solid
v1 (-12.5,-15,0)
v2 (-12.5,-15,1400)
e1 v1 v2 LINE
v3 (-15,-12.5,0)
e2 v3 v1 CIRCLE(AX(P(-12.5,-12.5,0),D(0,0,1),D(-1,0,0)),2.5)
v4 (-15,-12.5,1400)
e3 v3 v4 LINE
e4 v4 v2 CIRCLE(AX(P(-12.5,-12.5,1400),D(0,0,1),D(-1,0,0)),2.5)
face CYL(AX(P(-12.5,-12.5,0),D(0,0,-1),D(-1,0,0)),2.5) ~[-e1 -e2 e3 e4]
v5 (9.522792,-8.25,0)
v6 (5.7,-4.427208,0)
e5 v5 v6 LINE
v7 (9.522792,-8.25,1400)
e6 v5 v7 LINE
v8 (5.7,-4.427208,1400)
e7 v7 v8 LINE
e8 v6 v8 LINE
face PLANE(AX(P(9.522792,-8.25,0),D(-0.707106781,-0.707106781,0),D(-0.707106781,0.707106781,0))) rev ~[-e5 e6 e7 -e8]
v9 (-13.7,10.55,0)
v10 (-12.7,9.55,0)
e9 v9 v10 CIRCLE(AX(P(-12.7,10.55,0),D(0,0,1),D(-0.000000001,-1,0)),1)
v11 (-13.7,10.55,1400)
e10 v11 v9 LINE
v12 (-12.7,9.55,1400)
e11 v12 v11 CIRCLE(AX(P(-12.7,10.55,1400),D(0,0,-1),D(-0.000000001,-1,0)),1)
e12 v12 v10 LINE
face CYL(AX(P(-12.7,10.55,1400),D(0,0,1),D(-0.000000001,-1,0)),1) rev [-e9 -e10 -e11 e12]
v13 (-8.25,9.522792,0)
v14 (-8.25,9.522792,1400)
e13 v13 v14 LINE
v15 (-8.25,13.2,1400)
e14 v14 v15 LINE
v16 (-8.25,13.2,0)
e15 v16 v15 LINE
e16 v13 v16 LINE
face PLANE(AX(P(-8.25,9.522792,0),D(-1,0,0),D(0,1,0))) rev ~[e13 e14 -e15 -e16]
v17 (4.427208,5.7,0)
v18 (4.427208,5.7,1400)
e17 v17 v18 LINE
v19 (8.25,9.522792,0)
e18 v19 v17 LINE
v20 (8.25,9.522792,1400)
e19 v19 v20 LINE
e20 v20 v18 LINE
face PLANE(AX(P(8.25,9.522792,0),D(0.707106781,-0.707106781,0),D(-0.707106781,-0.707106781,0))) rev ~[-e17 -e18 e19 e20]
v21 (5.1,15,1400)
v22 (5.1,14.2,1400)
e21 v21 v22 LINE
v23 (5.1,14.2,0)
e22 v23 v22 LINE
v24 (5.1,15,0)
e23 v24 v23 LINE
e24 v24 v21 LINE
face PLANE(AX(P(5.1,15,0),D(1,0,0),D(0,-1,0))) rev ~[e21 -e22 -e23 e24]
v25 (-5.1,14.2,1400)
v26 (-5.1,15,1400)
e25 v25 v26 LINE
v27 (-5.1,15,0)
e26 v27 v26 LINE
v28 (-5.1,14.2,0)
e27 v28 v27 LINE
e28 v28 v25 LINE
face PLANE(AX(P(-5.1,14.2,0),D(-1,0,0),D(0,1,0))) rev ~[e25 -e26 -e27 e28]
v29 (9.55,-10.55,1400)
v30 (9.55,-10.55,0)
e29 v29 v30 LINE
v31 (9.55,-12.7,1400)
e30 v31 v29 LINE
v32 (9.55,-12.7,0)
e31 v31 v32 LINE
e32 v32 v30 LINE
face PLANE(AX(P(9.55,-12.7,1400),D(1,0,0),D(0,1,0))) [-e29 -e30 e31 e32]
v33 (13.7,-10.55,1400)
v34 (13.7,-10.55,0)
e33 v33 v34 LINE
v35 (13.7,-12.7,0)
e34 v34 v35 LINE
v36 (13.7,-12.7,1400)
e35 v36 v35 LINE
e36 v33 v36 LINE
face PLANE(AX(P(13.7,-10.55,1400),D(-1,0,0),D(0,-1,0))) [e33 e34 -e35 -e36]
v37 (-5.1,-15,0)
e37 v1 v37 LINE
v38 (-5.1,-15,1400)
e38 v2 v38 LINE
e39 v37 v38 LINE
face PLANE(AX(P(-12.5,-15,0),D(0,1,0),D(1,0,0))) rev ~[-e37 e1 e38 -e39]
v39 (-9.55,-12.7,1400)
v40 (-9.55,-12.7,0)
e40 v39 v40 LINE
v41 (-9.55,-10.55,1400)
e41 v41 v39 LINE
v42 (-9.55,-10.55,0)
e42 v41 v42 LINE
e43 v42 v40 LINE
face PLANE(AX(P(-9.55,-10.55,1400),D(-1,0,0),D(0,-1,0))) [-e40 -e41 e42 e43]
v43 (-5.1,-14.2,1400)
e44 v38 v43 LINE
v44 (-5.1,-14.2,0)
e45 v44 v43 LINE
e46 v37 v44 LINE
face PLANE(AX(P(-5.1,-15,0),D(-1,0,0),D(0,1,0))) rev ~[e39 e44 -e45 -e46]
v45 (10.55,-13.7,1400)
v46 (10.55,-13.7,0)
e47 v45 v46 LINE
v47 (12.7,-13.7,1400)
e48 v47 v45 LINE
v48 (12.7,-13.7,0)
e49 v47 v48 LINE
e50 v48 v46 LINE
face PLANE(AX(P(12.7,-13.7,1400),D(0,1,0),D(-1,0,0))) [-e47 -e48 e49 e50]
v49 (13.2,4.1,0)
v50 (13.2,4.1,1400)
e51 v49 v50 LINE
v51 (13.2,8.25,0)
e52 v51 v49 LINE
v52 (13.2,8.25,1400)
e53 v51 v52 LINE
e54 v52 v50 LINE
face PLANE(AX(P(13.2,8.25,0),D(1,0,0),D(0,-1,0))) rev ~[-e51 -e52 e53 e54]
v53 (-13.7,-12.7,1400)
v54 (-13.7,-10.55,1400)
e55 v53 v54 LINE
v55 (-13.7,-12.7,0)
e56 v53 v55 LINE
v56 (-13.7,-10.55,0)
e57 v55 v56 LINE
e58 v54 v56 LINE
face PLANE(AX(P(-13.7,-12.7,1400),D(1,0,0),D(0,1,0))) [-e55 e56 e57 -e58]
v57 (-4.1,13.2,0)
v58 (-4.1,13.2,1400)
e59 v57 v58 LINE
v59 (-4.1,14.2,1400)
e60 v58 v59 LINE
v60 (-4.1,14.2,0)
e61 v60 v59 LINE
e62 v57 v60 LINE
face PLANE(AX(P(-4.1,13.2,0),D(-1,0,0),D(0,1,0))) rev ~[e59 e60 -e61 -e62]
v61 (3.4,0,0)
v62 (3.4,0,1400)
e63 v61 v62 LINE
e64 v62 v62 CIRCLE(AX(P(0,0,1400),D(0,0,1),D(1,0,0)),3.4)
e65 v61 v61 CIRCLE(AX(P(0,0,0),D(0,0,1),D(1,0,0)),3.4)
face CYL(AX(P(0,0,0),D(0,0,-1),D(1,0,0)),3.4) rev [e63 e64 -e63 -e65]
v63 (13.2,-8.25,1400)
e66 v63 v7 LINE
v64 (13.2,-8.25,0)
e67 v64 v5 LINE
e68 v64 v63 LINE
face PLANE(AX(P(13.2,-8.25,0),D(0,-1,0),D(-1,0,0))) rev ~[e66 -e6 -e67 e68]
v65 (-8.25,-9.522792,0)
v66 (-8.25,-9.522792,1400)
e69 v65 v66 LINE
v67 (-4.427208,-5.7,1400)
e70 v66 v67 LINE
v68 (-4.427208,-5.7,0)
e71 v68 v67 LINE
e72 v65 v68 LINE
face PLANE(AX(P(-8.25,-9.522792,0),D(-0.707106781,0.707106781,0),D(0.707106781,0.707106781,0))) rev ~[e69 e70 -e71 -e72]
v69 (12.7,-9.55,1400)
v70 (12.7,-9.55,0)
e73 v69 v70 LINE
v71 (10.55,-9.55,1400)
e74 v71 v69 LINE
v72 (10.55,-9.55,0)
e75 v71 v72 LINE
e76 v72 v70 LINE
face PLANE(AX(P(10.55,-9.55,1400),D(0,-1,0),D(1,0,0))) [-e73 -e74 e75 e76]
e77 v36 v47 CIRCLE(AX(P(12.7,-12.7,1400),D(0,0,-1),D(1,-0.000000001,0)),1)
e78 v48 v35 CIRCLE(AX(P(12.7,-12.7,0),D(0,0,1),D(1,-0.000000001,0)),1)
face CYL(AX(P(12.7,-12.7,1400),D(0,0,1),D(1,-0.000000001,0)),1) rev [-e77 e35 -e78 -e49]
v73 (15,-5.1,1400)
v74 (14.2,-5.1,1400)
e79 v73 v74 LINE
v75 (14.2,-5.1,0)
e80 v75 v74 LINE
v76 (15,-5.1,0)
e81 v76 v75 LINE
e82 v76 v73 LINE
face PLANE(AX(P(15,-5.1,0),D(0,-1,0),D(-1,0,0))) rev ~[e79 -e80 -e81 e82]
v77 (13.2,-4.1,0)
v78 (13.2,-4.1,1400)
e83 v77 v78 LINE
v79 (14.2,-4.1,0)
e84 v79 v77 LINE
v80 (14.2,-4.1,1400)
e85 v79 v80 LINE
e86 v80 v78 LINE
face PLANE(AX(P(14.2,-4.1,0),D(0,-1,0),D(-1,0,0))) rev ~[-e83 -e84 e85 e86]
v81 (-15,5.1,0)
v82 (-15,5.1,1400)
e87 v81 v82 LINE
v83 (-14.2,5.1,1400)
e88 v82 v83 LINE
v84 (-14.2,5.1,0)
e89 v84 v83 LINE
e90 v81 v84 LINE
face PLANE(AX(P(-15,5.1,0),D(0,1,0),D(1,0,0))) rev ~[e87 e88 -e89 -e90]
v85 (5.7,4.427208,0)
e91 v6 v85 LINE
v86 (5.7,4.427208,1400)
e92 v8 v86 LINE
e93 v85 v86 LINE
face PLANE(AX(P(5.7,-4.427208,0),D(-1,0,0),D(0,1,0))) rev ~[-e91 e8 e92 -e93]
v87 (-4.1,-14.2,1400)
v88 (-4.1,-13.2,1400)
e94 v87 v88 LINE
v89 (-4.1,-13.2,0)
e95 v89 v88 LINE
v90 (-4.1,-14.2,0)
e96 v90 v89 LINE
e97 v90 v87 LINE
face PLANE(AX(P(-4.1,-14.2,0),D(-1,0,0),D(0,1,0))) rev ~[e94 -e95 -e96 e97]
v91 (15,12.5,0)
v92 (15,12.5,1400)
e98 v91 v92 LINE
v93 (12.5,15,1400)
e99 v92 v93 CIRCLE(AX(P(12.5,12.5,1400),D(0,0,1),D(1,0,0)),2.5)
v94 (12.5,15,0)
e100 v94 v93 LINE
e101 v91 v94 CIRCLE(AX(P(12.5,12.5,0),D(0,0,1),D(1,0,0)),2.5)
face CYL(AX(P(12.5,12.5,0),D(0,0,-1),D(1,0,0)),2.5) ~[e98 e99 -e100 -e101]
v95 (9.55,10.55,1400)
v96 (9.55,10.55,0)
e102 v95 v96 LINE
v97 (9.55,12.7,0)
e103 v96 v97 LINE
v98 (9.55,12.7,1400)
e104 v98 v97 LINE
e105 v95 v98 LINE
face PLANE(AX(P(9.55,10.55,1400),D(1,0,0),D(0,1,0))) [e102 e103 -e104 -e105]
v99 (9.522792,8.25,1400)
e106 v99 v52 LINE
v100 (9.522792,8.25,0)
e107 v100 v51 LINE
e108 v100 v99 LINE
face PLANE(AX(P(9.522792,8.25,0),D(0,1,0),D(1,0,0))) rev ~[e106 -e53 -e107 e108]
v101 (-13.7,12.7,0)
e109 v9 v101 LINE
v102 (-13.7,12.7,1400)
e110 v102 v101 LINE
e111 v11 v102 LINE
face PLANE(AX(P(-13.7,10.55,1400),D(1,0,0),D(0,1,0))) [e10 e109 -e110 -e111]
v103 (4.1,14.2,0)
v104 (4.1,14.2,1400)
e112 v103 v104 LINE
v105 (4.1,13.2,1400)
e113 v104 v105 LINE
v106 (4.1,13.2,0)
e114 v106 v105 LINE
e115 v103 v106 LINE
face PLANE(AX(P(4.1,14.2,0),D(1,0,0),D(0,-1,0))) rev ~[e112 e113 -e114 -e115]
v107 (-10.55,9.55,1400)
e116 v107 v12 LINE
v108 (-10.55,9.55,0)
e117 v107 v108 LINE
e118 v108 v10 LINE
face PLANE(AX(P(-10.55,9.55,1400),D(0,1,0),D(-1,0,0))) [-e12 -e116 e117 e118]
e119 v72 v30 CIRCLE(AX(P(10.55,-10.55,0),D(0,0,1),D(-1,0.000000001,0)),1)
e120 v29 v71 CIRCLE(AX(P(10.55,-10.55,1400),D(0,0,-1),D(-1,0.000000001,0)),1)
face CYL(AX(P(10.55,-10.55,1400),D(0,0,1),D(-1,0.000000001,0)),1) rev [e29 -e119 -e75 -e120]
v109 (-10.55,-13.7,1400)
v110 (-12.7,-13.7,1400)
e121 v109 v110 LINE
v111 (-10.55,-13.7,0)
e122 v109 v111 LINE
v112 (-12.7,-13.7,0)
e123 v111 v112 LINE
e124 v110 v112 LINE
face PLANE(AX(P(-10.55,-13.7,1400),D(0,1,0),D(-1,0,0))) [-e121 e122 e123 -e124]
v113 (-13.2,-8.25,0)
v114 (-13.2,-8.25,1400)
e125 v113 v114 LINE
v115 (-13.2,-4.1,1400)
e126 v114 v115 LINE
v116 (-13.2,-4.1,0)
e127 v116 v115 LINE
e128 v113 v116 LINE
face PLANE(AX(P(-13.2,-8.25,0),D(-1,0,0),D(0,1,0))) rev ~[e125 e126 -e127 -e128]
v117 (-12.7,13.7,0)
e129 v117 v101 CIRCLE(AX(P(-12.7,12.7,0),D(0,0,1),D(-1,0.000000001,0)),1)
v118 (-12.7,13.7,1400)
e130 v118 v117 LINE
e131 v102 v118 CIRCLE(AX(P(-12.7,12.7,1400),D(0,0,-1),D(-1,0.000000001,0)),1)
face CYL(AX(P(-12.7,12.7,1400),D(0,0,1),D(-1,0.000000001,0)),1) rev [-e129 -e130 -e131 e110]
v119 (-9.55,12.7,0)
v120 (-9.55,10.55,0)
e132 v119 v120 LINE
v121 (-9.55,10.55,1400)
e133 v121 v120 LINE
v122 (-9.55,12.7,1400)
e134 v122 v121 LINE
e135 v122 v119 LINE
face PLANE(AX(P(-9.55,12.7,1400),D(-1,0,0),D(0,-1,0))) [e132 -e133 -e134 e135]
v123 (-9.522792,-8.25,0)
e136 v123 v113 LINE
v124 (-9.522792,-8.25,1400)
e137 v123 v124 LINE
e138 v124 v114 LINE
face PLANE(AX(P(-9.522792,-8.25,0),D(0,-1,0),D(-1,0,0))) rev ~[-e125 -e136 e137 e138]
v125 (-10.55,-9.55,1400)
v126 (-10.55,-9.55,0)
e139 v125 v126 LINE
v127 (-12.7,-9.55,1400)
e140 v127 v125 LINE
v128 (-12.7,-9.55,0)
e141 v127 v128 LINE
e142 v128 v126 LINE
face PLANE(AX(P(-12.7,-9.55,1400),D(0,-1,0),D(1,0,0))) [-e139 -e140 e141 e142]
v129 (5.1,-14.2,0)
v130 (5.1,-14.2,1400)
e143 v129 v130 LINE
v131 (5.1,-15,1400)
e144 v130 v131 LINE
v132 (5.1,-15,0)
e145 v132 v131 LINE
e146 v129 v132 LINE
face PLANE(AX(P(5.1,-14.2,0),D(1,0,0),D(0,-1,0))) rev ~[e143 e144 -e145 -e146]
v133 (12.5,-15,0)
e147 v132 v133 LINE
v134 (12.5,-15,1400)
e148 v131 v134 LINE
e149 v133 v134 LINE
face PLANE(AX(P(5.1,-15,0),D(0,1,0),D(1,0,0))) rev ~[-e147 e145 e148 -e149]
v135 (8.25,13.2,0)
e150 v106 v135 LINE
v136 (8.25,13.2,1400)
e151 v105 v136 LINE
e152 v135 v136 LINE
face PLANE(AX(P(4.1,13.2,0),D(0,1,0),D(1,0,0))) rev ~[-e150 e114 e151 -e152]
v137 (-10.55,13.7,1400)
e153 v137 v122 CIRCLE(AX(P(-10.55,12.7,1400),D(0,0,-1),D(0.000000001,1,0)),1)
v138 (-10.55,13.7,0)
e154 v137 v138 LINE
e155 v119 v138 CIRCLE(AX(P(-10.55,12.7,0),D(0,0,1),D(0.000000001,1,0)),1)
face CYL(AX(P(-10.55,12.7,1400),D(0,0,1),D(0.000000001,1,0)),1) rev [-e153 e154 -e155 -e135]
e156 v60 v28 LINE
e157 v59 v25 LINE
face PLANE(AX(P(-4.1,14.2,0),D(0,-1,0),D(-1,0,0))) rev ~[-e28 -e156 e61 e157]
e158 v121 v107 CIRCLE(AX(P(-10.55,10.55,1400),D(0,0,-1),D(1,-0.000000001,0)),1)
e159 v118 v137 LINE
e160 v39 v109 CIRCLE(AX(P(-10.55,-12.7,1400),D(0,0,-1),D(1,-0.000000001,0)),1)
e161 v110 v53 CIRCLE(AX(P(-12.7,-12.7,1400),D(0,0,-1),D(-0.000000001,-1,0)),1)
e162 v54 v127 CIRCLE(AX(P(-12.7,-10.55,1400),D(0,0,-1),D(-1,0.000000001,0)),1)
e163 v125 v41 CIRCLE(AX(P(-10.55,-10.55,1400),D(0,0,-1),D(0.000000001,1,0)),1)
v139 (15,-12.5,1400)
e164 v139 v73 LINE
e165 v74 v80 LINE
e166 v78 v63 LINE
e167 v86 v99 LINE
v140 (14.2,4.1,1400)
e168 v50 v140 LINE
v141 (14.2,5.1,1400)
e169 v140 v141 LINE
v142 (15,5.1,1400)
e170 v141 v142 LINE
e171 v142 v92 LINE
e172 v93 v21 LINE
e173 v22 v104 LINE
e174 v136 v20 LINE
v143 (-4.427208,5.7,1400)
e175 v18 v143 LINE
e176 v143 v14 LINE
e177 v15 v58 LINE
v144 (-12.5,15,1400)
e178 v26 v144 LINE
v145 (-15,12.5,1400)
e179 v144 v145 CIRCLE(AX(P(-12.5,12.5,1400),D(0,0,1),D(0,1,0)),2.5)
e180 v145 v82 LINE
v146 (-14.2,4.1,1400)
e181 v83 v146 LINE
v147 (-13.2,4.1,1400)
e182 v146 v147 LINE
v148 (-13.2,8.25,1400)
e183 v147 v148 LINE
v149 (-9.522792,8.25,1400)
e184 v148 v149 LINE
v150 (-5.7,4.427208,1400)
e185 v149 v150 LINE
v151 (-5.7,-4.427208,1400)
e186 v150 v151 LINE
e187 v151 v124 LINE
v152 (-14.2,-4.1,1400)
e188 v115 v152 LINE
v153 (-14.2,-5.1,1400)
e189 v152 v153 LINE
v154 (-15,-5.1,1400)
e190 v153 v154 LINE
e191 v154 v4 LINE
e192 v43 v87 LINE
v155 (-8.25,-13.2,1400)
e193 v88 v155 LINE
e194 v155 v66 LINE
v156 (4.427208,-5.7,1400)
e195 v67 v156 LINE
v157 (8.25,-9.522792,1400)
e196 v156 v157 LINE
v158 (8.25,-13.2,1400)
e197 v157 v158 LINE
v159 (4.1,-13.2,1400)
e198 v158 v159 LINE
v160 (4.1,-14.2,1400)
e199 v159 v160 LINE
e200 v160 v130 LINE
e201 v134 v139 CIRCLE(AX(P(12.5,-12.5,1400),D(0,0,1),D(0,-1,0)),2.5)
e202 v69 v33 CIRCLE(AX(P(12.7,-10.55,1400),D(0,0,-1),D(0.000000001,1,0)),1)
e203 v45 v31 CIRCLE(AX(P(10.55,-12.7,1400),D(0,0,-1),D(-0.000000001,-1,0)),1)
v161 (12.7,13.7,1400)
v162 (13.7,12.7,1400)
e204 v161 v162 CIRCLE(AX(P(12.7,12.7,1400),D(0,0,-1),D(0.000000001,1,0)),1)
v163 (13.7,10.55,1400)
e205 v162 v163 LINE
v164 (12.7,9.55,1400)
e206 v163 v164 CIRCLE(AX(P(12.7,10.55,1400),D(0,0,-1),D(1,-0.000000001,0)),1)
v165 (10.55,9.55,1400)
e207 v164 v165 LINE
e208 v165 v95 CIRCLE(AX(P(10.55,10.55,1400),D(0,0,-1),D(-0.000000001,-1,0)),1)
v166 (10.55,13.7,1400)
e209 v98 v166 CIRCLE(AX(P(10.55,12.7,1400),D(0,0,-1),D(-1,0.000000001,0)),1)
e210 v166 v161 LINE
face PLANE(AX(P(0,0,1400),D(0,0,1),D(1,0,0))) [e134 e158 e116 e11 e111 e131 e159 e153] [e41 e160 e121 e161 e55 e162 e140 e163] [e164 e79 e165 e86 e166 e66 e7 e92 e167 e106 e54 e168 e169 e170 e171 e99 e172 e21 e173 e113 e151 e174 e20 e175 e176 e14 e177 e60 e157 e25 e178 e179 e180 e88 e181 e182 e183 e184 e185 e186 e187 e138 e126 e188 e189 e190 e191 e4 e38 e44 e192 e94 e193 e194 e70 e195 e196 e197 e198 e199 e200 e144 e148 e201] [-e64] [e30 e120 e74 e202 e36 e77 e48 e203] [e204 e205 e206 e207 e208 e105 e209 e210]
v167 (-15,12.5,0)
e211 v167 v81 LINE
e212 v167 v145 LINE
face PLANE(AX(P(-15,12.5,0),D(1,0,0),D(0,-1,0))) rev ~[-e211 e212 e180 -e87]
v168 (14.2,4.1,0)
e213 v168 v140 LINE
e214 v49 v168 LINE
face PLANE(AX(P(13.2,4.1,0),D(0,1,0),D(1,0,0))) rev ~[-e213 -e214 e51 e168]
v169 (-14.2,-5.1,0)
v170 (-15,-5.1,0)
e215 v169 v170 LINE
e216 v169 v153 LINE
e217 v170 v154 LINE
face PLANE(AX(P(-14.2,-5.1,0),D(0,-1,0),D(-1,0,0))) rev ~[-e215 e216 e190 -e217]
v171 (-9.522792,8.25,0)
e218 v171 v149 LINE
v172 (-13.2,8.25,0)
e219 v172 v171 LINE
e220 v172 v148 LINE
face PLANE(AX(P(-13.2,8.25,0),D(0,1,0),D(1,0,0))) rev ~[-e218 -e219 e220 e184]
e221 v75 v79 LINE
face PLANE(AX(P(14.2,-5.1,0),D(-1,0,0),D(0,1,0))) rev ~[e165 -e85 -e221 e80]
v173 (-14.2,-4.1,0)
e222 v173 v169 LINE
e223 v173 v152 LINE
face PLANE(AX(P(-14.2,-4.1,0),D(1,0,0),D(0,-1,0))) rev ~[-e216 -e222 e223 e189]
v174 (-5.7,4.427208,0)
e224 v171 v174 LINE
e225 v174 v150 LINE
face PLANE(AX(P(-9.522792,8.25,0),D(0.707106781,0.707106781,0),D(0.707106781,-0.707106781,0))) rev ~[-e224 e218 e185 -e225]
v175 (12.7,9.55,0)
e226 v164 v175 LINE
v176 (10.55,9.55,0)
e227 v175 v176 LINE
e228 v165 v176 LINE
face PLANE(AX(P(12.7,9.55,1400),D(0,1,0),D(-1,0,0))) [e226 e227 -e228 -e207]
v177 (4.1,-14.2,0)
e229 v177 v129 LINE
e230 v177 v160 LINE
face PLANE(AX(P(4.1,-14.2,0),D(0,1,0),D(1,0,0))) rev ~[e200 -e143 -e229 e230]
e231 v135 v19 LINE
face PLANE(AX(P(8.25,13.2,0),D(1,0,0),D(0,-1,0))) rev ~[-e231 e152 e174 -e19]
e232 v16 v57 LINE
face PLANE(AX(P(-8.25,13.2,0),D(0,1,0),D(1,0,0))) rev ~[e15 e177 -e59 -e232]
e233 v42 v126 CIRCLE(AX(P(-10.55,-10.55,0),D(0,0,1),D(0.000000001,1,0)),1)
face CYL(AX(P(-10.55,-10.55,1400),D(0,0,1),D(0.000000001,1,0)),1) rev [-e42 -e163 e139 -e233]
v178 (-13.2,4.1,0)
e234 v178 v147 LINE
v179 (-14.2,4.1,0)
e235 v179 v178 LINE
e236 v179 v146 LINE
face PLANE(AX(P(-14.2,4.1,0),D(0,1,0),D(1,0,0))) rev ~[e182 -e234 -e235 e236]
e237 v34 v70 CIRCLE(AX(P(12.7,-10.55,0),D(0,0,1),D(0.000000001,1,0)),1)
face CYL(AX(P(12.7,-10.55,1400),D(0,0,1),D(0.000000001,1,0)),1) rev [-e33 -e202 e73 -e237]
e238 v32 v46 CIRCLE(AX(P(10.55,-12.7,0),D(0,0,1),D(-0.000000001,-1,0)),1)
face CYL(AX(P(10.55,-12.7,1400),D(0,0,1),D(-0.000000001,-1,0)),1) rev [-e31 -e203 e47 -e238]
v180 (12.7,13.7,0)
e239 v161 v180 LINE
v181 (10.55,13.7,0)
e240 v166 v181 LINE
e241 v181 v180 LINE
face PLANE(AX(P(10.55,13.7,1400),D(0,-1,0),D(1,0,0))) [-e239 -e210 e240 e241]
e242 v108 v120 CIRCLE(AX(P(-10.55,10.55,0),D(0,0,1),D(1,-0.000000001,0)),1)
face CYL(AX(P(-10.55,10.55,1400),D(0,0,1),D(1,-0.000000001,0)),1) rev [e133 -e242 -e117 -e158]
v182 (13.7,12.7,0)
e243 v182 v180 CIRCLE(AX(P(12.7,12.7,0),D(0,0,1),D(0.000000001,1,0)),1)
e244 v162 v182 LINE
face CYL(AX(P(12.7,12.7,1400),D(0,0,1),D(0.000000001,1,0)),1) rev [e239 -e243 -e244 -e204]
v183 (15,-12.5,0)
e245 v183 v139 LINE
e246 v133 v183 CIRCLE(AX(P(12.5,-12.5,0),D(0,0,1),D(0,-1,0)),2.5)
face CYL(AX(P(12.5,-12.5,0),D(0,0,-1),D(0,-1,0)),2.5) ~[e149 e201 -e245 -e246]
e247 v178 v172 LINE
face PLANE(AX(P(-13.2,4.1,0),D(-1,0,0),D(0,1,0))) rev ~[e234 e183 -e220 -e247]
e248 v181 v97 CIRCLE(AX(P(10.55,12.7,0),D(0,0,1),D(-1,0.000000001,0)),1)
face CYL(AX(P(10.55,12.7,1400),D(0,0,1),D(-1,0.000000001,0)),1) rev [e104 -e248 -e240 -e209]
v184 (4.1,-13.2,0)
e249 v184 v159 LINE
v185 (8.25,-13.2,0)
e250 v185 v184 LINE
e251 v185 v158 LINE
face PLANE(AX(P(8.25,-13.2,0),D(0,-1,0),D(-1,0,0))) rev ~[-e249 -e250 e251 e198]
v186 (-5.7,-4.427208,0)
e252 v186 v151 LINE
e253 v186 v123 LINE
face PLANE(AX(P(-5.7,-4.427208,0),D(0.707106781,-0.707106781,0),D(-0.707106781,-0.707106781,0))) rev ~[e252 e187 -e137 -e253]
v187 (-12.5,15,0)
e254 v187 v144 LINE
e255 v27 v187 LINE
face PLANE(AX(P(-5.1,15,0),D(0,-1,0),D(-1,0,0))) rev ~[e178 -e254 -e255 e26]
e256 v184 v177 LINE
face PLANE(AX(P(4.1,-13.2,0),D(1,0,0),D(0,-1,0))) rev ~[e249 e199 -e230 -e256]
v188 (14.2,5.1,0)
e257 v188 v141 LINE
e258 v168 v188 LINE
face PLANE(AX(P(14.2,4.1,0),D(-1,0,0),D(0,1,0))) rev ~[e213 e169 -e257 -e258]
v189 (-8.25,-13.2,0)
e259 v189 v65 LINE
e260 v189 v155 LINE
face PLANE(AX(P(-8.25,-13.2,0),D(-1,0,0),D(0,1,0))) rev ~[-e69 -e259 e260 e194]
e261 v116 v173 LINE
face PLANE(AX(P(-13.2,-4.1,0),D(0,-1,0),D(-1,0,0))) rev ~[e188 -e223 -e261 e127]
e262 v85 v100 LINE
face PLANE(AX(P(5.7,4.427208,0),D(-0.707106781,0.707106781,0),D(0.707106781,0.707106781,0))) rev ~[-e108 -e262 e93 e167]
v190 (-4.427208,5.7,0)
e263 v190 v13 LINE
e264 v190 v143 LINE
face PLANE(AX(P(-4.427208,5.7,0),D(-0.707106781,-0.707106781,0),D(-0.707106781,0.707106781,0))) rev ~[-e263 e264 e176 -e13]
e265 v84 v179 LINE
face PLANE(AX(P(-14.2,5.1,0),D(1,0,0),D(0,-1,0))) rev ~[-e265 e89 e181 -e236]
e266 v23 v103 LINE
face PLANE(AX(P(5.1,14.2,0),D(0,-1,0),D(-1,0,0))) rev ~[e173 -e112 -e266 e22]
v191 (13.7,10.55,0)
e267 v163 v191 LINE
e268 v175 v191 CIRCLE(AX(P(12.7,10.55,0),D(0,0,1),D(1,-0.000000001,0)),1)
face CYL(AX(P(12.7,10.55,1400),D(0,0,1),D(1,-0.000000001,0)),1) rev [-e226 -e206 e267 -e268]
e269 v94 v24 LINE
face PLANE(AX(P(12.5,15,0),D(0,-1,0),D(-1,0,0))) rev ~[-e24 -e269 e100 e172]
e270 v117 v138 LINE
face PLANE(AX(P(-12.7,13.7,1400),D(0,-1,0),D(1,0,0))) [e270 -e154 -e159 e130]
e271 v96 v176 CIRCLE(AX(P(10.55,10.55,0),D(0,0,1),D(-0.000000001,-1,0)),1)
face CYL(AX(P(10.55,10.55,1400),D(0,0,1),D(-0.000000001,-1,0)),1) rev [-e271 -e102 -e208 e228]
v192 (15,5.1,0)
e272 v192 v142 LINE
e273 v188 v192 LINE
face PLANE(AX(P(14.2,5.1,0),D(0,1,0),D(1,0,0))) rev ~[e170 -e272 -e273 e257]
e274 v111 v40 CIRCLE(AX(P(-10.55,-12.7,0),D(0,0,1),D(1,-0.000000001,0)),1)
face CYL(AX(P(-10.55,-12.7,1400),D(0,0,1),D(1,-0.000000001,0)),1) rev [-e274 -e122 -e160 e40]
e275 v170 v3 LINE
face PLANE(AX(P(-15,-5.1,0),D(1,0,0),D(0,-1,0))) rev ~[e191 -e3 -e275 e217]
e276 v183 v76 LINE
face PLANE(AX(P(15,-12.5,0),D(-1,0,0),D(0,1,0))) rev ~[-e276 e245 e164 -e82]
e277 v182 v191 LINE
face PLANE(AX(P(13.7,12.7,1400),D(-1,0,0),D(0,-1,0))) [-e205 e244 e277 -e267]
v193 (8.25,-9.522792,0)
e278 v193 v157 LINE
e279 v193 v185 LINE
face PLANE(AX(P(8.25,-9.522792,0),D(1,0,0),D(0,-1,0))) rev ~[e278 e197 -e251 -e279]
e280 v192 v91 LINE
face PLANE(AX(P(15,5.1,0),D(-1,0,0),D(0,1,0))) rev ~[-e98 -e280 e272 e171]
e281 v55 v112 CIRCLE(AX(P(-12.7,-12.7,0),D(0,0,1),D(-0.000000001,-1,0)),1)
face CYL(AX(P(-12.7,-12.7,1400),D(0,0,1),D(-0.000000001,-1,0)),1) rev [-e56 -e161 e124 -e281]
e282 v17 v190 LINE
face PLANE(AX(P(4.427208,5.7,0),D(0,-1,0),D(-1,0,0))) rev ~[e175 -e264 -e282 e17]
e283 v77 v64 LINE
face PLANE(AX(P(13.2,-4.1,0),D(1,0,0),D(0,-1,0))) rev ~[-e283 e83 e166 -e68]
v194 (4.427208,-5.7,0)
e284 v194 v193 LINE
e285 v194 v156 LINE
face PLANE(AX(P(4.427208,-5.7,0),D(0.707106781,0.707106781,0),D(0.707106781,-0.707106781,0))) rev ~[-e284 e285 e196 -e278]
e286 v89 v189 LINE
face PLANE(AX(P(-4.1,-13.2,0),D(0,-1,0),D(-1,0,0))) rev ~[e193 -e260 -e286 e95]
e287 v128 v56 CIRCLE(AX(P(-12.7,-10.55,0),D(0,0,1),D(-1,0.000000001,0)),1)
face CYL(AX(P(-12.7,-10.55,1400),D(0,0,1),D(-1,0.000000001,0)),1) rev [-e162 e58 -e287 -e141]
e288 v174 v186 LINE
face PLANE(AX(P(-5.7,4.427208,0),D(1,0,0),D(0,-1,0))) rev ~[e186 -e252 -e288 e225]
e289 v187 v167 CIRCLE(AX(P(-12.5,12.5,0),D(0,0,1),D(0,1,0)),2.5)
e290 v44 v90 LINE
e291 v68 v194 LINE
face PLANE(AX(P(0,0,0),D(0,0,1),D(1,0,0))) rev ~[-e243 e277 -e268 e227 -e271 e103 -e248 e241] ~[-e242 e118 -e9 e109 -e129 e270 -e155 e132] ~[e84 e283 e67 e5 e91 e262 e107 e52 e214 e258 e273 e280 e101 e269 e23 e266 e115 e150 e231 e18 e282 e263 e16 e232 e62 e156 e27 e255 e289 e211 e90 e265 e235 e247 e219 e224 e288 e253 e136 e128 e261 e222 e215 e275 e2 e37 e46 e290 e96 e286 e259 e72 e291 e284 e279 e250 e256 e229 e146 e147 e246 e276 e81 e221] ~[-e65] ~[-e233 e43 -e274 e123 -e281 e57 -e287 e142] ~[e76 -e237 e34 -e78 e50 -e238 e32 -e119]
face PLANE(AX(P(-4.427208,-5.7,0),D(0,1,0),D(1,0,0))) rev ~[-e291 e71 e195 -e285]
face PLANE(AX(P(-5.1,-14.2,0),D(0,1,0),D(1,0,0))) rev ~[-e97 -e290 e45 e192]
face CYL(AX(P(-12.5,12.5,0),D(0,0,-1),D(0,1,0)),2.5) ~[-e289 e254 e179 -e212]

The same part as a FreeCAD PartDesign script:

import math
import FreeCAD as App
import Part
import Sketcher

V = App.Vector

doc = App.newDocument("Part")
params = doc.addObject("Spreadsheet::Sheet", "Params")
for row, (alias, value) in enumerate([
    ("sketch1_diameter", "6.8 mm"),
    ("sketch1_radius", "2.5 mm"),
    ("sketch1_width", "1 mm"),
    ("sketch1_width2", "7.4 mm"),
    ("sketch1_width3", "0.8 mm"),
    ("pad1_length", "1400 mm"),
    ("sketch2_radius", "1 mm"),
    ("sketch2_width", "2.15 mm"),
], start=1):
    params.set(f"A{row}", alias)
    params.set(f"B{row}", "=" + value)
    params.setAlias(f"B{row}", alias)

body = doc.addObject("PartDesign::Body", "Body")

# Sketch on XY plane
sketch1 = body.newObject("Sketcher::SketchObject", "Sketch")
sketch1.AttachmentSupport = (doc.getObject("XY_Plane"), [""])
sketch1.MapMode = "FlatFace"
sketch1.addGeometry(Part.LineSegment(V(-5.1, 14.2, 0), V(-5.1, 15, 0)), False)
sketch1.addGeometry(Part.LineSegment(V(-5.1, 15, 0), V(-12.5, 15, 0)), False)
sketch1.addGeometry(Part.ArcOfCircle(Part.Circle(V(-12.5, 12.5, 0), V(0, 0, 1), 2.5), math.radians(90), math.radians(180)), False)
sketch1.addGeometry(Part.LineSegment(V(-15, 12.5, 0), V(-15, 5.1, 0)), False)
sketch1.addGeometry(Part.LineSegment(V(-15, 5.1, 0), V(-14.2, 5.1, 0)), False)
sketch1.addGeometry(Part.LineSegment(V(-14.2, 5.1, 0), V(-14.2, 4.1, 0)), False)
sketch1.addGeometry(Part.LineSegment(V(-14.2, 4.1, 0), V(-13.2, 4.1, 0)), False)
sketch1.addGeometry(Part.LineSegment(V(-13.2, 4.1, 0), V(-13.2, 8.25, 0)), False)
sketch1.addGeometry(Part.LineSegment(V(-13.2, 8.25, 0), V(-9.522792, 8.25, 0)), False)
sketch1.addGeometry(Part.LineSegment(V(-9.522792, 8.25, 0), V(-5.7, 4.427208, 0)), False)
sketch1.addGeometry(Part.LineSegment(V(-5.7, 4.427208, 0), V(-5.7, -4.427208, 0)), False)
sketch1.addGeometry(Part.LineSegment(V(-5.7, -4.427208, 0), V(-9.522792, -8.25, 0)), False)
sketch1.addGeometry(Part.LineSegment(V(-9.522792, -8.25, 0), V(-13.2, -8.25, 0)), False)
sketch1.addGeometry(Part.LineSegment(V(-13.2, -8.25, 0), V(-13.2, -4.1, 0)), False)
sketch1.addGeometry(Part.LineSegment(V(-13.2, -4.1, 0), V(-14.2, -4.1, 0)), False)
sketch1.addGeometry(Part.LineSegment(V(-14.2, -4.1, 0), V(-14.2, -5.1, 0)), False)
sketch1.addGeometry(Part.LineSegment(V(-14.2, -5.1, 0), V(-15, -5.1, 0)), False)
sketch1.addGeometry(Part.LineSegment(V(-15, -5.1, 0), V(-15, -12.5, 0)), False)
sketch1.addGeometry(Part.ArcOfCircle(Part.Circle(V(-12.5, -12.5, 0), V(0, 0, 1), 2.5), math.radians(180), math.radians(270)), False)
sketch1.addGeometry(Part.LineSegment(V(-12.5, -15, 0), V(-5.1, -15, 0)), False)
sketch1.addGeometry(Part.LineSegment(V(-5.1, -15, 0), V(-5.1, -14.2, 0)), False)
sketch1.addGeometry(Part.LineSegment(V(-5.1, -14.2, 0), V(-4.1, -14.2, 0)), False)
sketch1.addGeometry(Part.LineSegment(V(-4.1, -14.2, 0), V(-4.1, -13.2, 0)), False)
sketch1.addGeometry(Part.LineSegment(V(-4.1, -13.2, 0), V(-8.25, -13.2, 0)), False)
sketch1.addGeometry(Part.LineSegment(V(-8.25, -13.2, 0), V(-8.25, -9.522792, 0)), False)
sketch1.addGeometry(Part.LineSegment(V(-8.25, -9.522792, 0), V(-4.427208, -5.7, 0)), False)
sketch1.addGeometry(Part.LineSegment(V(-4.427208, -5.7, 0), V(4.427208, -5.7, 0)), False)
sketch1.addGeometry(Part.LineSegment(V(4.427208, -5.7, 0), V(8.25, -9.522792, 0)), False)
sketch1.addGeometry(Part.LineSegment(V(8.25, -9.522792, 0), V(8.25, -13.2, 0)), False)
sketch1.addGeometry(Part.LineSegment(V(8.25, -13.2, 0), V(4.1, -13.2, 0)), False)
sketch1.addGeometry(Part.LineSegment(V(4.1, -13.2, 0), V(4.1, -14.2, 0)), False)
sketch1.addGeometry(Part.LineSegment(V(4.1, -14.2, 0), V(5.1, -14.2, 0)), False)
sketch1.addGeometry(Part.LineSegment(V(5.1, -14.2, 0), V(5.1, -15, 0)), False)
sketch1.addGeometry(Part.LineSegment(V(5.1, -15, 0), V(12.5, -15, 0)), False)
sketch1.addGeometry(Part.ArcOfCircle(Part.Circle(V(12.5, -12.5, 0), V(0, 0, 1), 2.5), math.radians(-90), math.radians(0)), False)
sketch1.addGeometry(Part.LineSegment(V(15, -12.5, 0), V(15, -5.1, 0)), False)
sketch1.addGeometry(Part.LineSegment(V(15, -5.1, 0), V(14.2, -5.1, 0)), False)
sketch1.addGeometry(Part.LineSegment(V(14.2, -5.1, 0), V(14.2, -4.1, 0)), False)
sketch1.addGeometry(Part.LineSegment(V(14.2, -4.1, 0), V(13.2, -4.1, 0)), False)
sketch1.addGeometry(Part.LineSegment(V(13.2, -4.1, 0), V(13.2, -8.25, 0)), False)
sketch1.addGeometry(Part.LineSegment(V(13.2, -8.25, 0), V(9.522792, -8.25, 0)), False)
sketch1.addGeometry(Part.LineSegment(V(9.522792, -8.25, 0), V(5.7, -4.427208, 0)), False)
sketch1.addGeometry(Part.LineSegment(V(5.7, -4.427208, 0), V(5.7, 4.427208, 0)), False)
sketch1.addGeometry(Part.LineSegment(V(5.7, 4.427208, 0), V(9.522792, 8.25, 0)), False)
sketch1.addGeometry(Part.LineSegment(V(9.522792, 8.25, 0), V(13.2, 8.25, 0)), False)
sketch1.addGeometry(Part.LineSegment(V(13.2, 8.25, 0), V(13.2, 4.1, 0)), False)
sketch1.addGeometry(Part.LineSegment(V(13.2, 4.1, 0), V(14.2, 4.1, 0)), False)
sketch1.addGeometry(Part.LineSegment(V(14.2, 4.1, 0), V(14.2, 5.1, 0)), False)
sketch1.addGeometry(Part.LineSegment(V(14.2, 5.1, 0), V(15, 5.1, 0)), False)
sketch1.addGeometry(Part.LineSegment(V(15, 5.1, 0), V(15, 12.5, 0)), False)
sketch1.addGeometry(Part.ArcOfCircle(Part.Circle(V(12.5, 12.5, 0), V(0, 0, 1), 2.5), math.radians(0), math.radians(90)), False)
sketch1.addGeometry(Part.LineSegment(V(12.5, 15, 0), V(5.1, 15, 0)), False)
sketch1.addGeometry(Part.LineSegment(V(5.1, 15, 0), V(5.1, 14.2, 0)), False)
sketch1.addGeometry(Part.LineSegment(V(5.1, 14.2, 0), V(4.1, 14.2, 0)), False)
sketch1.addGeometry(Part.LineSegment(V(4.1, 14.2, 0), V(4.1, 13.2, 0)), False)
sketch1.addGeometry(Part.LineSegment(V(4.1, 13.2, 0), V(8.25, 13.2, 0)), False)
sketch1.addGeometry(Part.LineSegment(V(8.25, 13.2, 0), V(8.25, 9.522792, 0)), False)
sketch1.addGeometry(Part.LineSegment(V(8.25, 9.522792, 0), V(4.427208, 5.7, 0)), False)
sketch1.addGeometry(Part.LineSegment(V(4.427208, 5.7, 0), V(-4.427208, 5.7, 0)), False)
sketch1.addGeometry(Part.LineSegment(V(-4.427208, 5.7, 0), V(-8.25, 9.522792, 0)), False)
sketch1.addGeometry(Part.LineSegment(V(-8.25, 9.522792, 0), V(-8.25, 13.2, 0)), False)
sketch1.addGeometry(Part.LineSegment(V(-8.25, 13.2, 0), V(-4.1, 13.2, 0)), False)
sketch1.addGeometry(Part.LineSegment(V(-4.1, 13.2, 0), V(-4.1, 14.2, 0)), False)
sketch1.addGeometry(Part.LineSegment(V(-4.1, 14.2, 0), V(-5.1, 14.2, 0)), False)
sketch1.addGeometry(Part.Circle(V(0, 0, 0), V(0, 0, 1), 3.4), False)
sketch1.addConstraint(Sketcher.Constraint("Coincident", 0, 2, 1, 1))
sketch1.addConstraint(Sketcher.Constraint("Tangent", 1, 2, 2, 1))
sketch1.addConstraint(Sketcher.Constraint("Tangent", 2, 2, 3, 1))
sketch1.addConstraint(Sketcher.Constraint("Coincident", 3, 2, 4, 1))
sketch1.addConstraint(Sketcher.Constraint("Coincident", 4, 2, 5, 1))
sketch1.addConstraint(Sketcher.Constraint("Coincident", 5, 2, 6, 1))
sketch1.addConstraint(Sketcher.Constraint("Coincident", 6, 2, 7, 1))
sketch1.addConstraint(Sketcher.Constraint("Coincident", 7, 2, 8, 1))
sketch1.addConstraint(Sketcher.Constraint("Coincident", 8, 2, 9, 1))
sketch1.addConstraint(Sketcher.Constraint("Coincident", 9, 2, 10, 1))
sketch1.addConstraint(Sketcher.Constraint("Coincident", 10, 2, 11, 1))
sketch1.addConstraint(Sketcher.Constraint("Coincident", 11, 2, 12, 1))
sketch1.addConstraint(Sketcher.Constraint("Coincident", 12, 2, 13, 1))
sketch1.addConstraint(Sketcher.Constraint("Coincident", 13, 2, 14, 1))
sketch1.addConstraint(Sketcher.Constraint("Coincident", 14, 2, 15, 1))
sketch1.addConstraint(Sketcher.Constraint("Coincident", 15, 2, 16, 1))
sketch1.addConstraint(Sketcher.Constraint("Coincident", 16, 2, 17, 1))
sketch1.addConstraint(Sketcher.Constraint("Tangent", 17, 2, 18, 1))
sketch1.addConstraint(Sketcher.Constraint("Tangent", 18, 2, 19, 1))
sketch1.addConstraint(Sketcher.Constraint("Coincident", 19, 2, 20, 1))
sketch1.addConstraint(Sketcher.Constraint("Coincident", 20, 2, 21, 1))
sketch1.addConstraint(Sketcher.Constraint("Coincident", 21, 2, 22, 1))
sketch1.addConstraint(Sketcher.Constraint("Coincident", 22, 2, 23, 1))
sketch1.addConstraint(Sketcher.Constraint("Coincident", 23, 2, 24, 1))
sketch1.addConstraint(Sketcher.Constraint("Coincident", 24, 2, 25, 1))
sketch1.addConstraint(Sketcher.Constraint("Coincident", 25, 2, 26, 1))
sketch1.addConstraint(Sketcher.Constraint("Coincident", 26, 2, 27, 1))
sketch1.addConstraint(Sketcher.Constraint("Coincident", 27, 2, 28, 1))
sketch1.addConstraint(Sketcher.Constraint("Coincident", 28, 2, 29, 1))
sketch1.addConstraint(Sketcher.Constraint("Coincident", 29, 2, 30, 1))
sketch1.addConstraint(Sketcher.Constraint("Coincident", 30, 2, 31, 1))
sketch1.addConstraint(Sketcher.Constraint("Coincident", 31, 2, 32, 1))
sketch1.addConstraint(Sketcher.Constraint("Coincident", 32, 2, 33, 1))
sketch1.addConstraint(Sketcher.Constraint("Tangent", 33, 2, 34, 1))
sketch1.addConstraint(Sketcher.Constraint("Tangent", 34, 2, 35, 1))
sketch1.addConstraint(Sketcher.Constraint("Coincident", 35, 2, 36, 1))
sketch1.addConstraint(Sketcher.Constraint("Coincident", 36, 2, 37, 1))
sketch1.addConstraint(Sketcher.Constraint("Coincident", 37, 2, 38, 1))
sketch1.addConstraint(Sketcher.Constraint("Coincident", 38, 2, 39, 1))
sketch1.addConstraint(Sketcher.Constraint("Coincident", 39, 2, 40, 1))
sketch1.addConstraint(Sketcher.Constraint("Coincident", 40, 2, 41, 1))
sketch1.addConstraint(Sketcher.Constraint("Coincident", 41, 2, 42, 1))
sketch1.addConstraint(Sketcher.Constraint("Coincident", 42, 2, 43, 1))
sketch1.addConstraint(Sketcher.Constraint("Coincident", 43, 2, 44, 1))
sketch1.addConstraint(Sketcher.Constraint("Coincident", 44, 2, 45, 1))
sketch1.addConstraint(Sketcher.Constraint("Coincident", 45, 2, 46, 1))
sketch1.addConstraint(Sketcher.Constraint("Coincident", 46, 2, 47, 1))
sketch1.addConstraint(Sketcher.Constraint("Coincident", 47, 2, 48, 1))
sketch1.addConstraint(Sketcher.Constraint("Coincident", 48, 2, 49, 1))
sketch1.addConstraint(Sketcher.Constraint("Tangent", 49, 2, 50, 1))
sketch1.addConstraint(Sketcher.Constraint("Tangent", 50, 2, 51, 1))
sketch1.addConstraint(Sketcher.Constraint("Coincident", 51, 2, 52, 1))
sketch1.addConstraint(Sketcher.Constraint("Coincident", 52, 2, 53, 1))
sketch1.addConstraint(Sketcher.Constraint("Coincident", 53, 2, 54, 1))
sketch1.addConstraint(Sketcher.Constraint("Coincident", 54, 2, 55, 1))
sketch1.addConstraint(Sketcher.Constraint("Coincident", 55, 2, 56, 1))
sketch1.addConstraint(Sketcher.Constraint("Coincident", 56, 2, 57, 1))
sketch1.addConstraint(Sketcher.Constraint("Coincident", 57, 2, 58, 1))
sketch1.addConstraint(Sketcher.Constraint("Coincident", 58, 2, 59, 1))
sketch1.addConstraint(Sketcher.Constraint("Coincident", 59, 2, 60, 1))
sketch1.addConstraint(Sketcher.Constraint("Coincident", 60, 2, 61, 1))
sketch1.addConstraint(Sketcher.Constraint("Coincident", 61, 2, 62, 1))
sketch1.addConstraint(Sketcher.Constraint("Coincident", 62, 2, 63, 1))
sketch1.addConstraint(Sketcher.Constraint("Coincident", 63, 2, 0, 1))
sketch1.addConstraint(Sketcher.Constraint("Vertical", 0))
sketch1.addConstraint(Sketcher.Constraint("Horizontal", 1))
sketch1.addConstraint(Sketcher.Constraint("Vertical", 3))
sketch1.addConstraint(Sketcher.Constraint("Horizontal", 4))
sketch1.addConstraint(Sketcher.Constraint("Vertical", 5))
sketch1.addConstraint(Sketcher.Constraint("Horizontal", 6))
sketch1.addConstraint(Sketcher.Constraint("Vertical", 7))
sketch1.addConstraint(Sketcher.Constraint("Horizontal", 8))
sketch1.addConstraint(Sketcher.Constraint("Vertical", 10))
sketch1.addConstraint(Sketcher.Constraint("Horizontal", 12))
sketch1.addConstraint(Sketcher.Constraint("Vertical", 13))
sketch1.addConstraint(Sketcher.Constraint("Horizontal", 14))
sketch1.addConstraint(Sketcher.Constraint("Vertical", 15))
sketch1.addConstraint(Sketcher.Constraint("Horizontal", 16))
sketch1.addConstraint(Sketcher.Constraint("Vertical", 17))
sketch1.addConstraint(Sketcher.Constraint("Horizontal", 19))
sketch1.addConstraint(Sketcher.Constraint("Vertical", 20))
sketch1.addConstraint(Sketcher.Constraint("Horizontal", 21))
sketch1.addConstraint(Sketcher.Constraint("Vertical", 22))
sketch1.addConstraint(Sketcher.Constraint("Horizontal", 23))
sketch1.addConstraint(Sketcher.Constraint("Vertical", 24))
sketch1.addConstraint(Sketcher.Constraint("Horizontal", 26))
sketch1.addConstraint(Sketcher.Constraint("Vertical", 28))
sketch1.addConstraint(Sketcher.Constraint("Horizontal", 29))
sketch1.addConstraint(Sketcher.Constraint("Vertical", 30))
sketch1.addConstraint(Sketcher.Constraint("Horizontal", 31))
sketch1.addConstraint(Sketcher.Constraint("Vertical", 32))
sketch1.addConstraint(Sketcher.Constraint("Horizontal", 33))
sketch1.addConstraint(Sketcher.Constraint("Vertical", 35))
sketch1.addConstraint(Sketcher.Constraint("Horizontal", 36))
sketch1.addConstraint(Sketcher.Constraint("Vertical", 37))
sketch1.addConstraint(Sketcher.Constraint("Horizontal", 38))
sketch1.addConstraint(Sketcher.Constraint("Vertical", 39))
sketch1.addConstraint(Sketcher.Constraint("Horizontal", 40))
sketch1.addConstraint(Sketcher.Constraint("Vertical", 42))
sketch1.addConstraint(Sketcher.Constraint("Horizontal", 44))
sketch1.addConstraint(Sketcher.Constraint("Vertical", 45))
sketch1.addConstraint(Sketcher.Constraint("Horizontal", 46))
sketch1.addConstraint(Sketcher.Constraint("Vertical", 47))
sketch1.addConstraint(Sketcher.Constraint("Horizontal", 48))
sketch1.addConstraint(Sketcher.Constraint("Vertical", 49))
sketch1.addConstraint(Sketcher.Constraint("Horizontal", 51))
sketch1.addConstraint(Sketcher.Constraint("Vertical", 52))
sketch1.addConstraint(Sketcher.Constraint("Horizontal", 53))
sketch1.addConstraint(Sketcher.Constraint("Vertical", 54))
sketch1.addConstraint(Sketcher.Constraint("Horizontal", 55))
sketch1.addConstraint(Sketcher.Constraint("Vertical", 56))
sketch1.addConstraint(Sketcher.Constraint("Horizontal", 58))
sketch1.addConstraint(Sketcher.Constraint("Vertical", 60))
sketch1.addConstraint(Sketcher.Constraint("Horizontal", 61))
sketch1.addConstraint(Sketcher.Constraint("Vertical", 62))
sketch1.addConstraint(Sketcher.Constraint("Horizontal", 63))
sketch1.addConstraint(Sketcher.Constraint("Coincident", 64, 3, -1, 1))
sketch1.addConstraint(Sketcher.Constraint("Equal", 2, 18))
sketch1.addConstraint(Sketcher.Constraint("Equal", 18, 34))
sketch1.addConstraint(Sketcher.Constraint("Equal", 34, 50))
sketch1.addConstraint(Sketcher.Constraint("Symmetric", 2, 3, 34, 3, -1, 1))
sketch1.addConstraint(Sketcher.Constraint("Symmetric", 18, 3, 50, 3, -1, 1))
sketch1.addConstraint(Sketcher.Constraint("Symmetric", 4, 2, 36, 2, -1, 1))
sketch1.addConstraint(Sketcher.Constraint("Symmetric", 6, 2, 38, 2, -1, 1))
sketch1.addConstraint(Sketcher.Constraint("Symmetric", 8, 2, 40, 2, -1, 1))
sketch1.addConstraint(Sketcher.Constraint("Symmetric", 9, 2, 41, 2, -1, 1))
sketch1.addConstraint(Sketcher.Constraint("Symmetric", 11, 2, 43, 2, -1, 1))
sketch1.addConstraint(Sketcher.Constraint("Symmetric", 13, 2, 45, 2, -1, 1))
sketch1.addConstraint(Sketcher.Constraint("Symmetric", 15, 2, 47, 2, -1, 1))
sketch1.addConstraint(Sketcher.Constraint("Symmetric", 20, 2, 52, 2, -1, 1))
sketch1.addConstraint(Sketcher.Constraint("Symmetric", 22, 2, 54, 2, -1, 1))
sketch1.addConstraint(Sketcher.Constraint("Symmetric", 24, 2, 56, 2, -1, 1))
sketch1.addConstraint(Sketcher.Constraint("Symmetric", 25, 2, 57, 2, -1, 1))
sketch1.addConstraint(Sketcher.Constraint("Symmetric", 27, 2, 59, 2, -1, 1))
sketch1.addConstraint(Sketcher.Constraint("Symmetric", 29, 2, 61, 2, -1, 1))
sketch1.addConstraint(Sketcher.Constraint("Symmetric", 31, 2, 63, 2, -1, 1))
sketch1.addConstraint(Sketcher.Constraint("Symmetric", 18, 3, 34, 3, -2))
sketch1.addConstraint(Sketcher.Constraint("Symmetric", 24, 2, 27, 2, -2))
sketch1.addConstraint(Sketcher.Constraint("Symmetric", 22, 2, 29, 2, -2))
sketch1.addConstraint(Sketcher.Constraint("Symmetric", 20, 2, 31, 2, -2))
sketch1.addConstraint(Sketcher.Constraint("Symmetric", 15, 2, 36, 2, -2))
sketch1.addConstraint(Sketcher.Constraint("Symmetric", 13, 2, 38, 2, -2))
sketch1.addConstraint(Sketcher.Constraint("Symmetric", 11, 2, 40, 2, -2))
sketch1.addConstraint(Sketcher.Constraint("Perpendicular", 9, 11))
sketch1.addConstraint(Sketcher.Constraint("Parallel", 11, 25))
sketch1.addConstraint(Sketcher.Constraint("Perpendicular", 25, 27))
sketch1.addConstraint(Sketcher.Constraint("Perpendicular", 41, 43))
sketch1.addConstraint(Sketcher.Constraint("Perpendicular", 57, 59))
sketch1.addConstraint(Sketcher.Constraint("Horizontal", 10, 2, 41, 2))
sketch1.addConstraint(Sketcher.Constraint("Equal", 14, 21))
sketch1.addConstraint(Sketcher.Constraint("Equal", 48, 0))
sketch1.addConstraint(Sketcher.Constraint("Equal", 51, 3))
sketch1.addConstraint(Sketcher.Constraint("Equal", 63, 5))
sketch1.addConstraint(Sketcher.Constraint("Equal", 61, 7))
sketch1.addConstraint(Sketcher.Constraint("Equal", 58, 10))
sketch1.addConstraint(Sketcher.Constraint("Equal", 15, 22))
sketch1.addConstraint(Sketcher.Constraint("Equal", 44, 24))
sketch1.addConstraint(Sketcher.Constraint("Equal", 11, 25))
sketch1.addConstraint(Sketcher.Constraint("Diameter", 64, 6.8))
sketch1.addConstraint(Sketcher.Constraint("Radius", 2, 2.5))
sketch1.addConstraint(Sketcher.Constraint("DistanceX", 6, 1, 6, 2, 1.0))
sketch1.addConstraint(Sketcher.Constraint("DistanceX", 1, 2, 1, 1, 7.4))
sketch1.addConstraint(Sketcher.Constraint("DistanceX", 4, 1, 4, 2, 0.8))
sketch1.addConstraint(Sketcher.Constraint("DistanceY", -1, 1, 0, 2, 15.0))
sketch1.addConstraint(Sketcher.Constraint("DistanceX", 23, 2, 23, 1, 4.15))
sketch1.addConstraint(Sketcher.Constraint("DistanceX", 9, 2, -1, 1, 5.7))
sketch1.addConstraint(Sketcher.Constraint("DistanceX", 8, 1, 8, 2, 3.677208))
sketch1.setExpression("Constraints[158]", "Params.sketch1_diameter")
sketch1.setExpression("Constraints[159]", "Params.sketch1_radius")
sketch1.setExpression("Constraints[160]", "Params.sketch1_width")
sketch1.setExpression("Constraints[161]", "Params.sketch1_width2")
sketch1.setExpression("Constraints[162]", "Params.sketch1_width3")
pad1 = body.newObject("PartDesign::Pad", "Pad")
pad1.Profile = sketch1
pad1.setExpression("Length", "Params.pad1_length")

# Sketch on XY plane
sketch2 = body.newObject("Sketcher::SketchObject", "Sketch001")
sketch2.AttachmentSupport = (doc.getObject("XY_Plane"), [""])
sketch2.MapMode = "FlatFace"
sketch2.AttachmentOffset = App.Placement(V(0, 0, 1400), App.Rotation())
sketch2.addGeometry(Part.LineSegment(V(13.7, 10.55, 0), V(13.7, 12.7, 0)), False)
sketch2.addGeometry(Part.ArcOfCircle(Part.Circle(V(12.7, 12.7, 0), V(0, 0, 1), 1), math.radians(0), math.radians(90)), False)
sketch2.addGeometry(Part.LineSegment(V(12.7, 13.7, 0), V(10.55, 13.7, 0)), False)
sketch2.addGeometry(Part.ArcOfCircle(Part.Circle(V(10.55, 12.7, 0), V(0, 0, 1), 1), math.radians(90), math.radians(180)), False)
sketch2.addGeometry(Part.LineSegment(V(9.55, 12.7, 0), V(9.55, 10.55, 0)), False)
sketch2.addGeometry(Part.ArcOfCircle(Part.Circle(V(10.55, 10.55, 0), V(0, 0, 1), 1), math.radians(-180), math.radians(-90)), False)
sketch2.addGeometry(Part.LineSegment(V(10.55, 9.55, 0), V(12.7, 9.55, 0)), False)
sketch2.addGeometry(Part.ArcOfCircle(Part.Circle(V(12.7, 10.55, 0), V(0, 0, 1), 1), math.radians(-90), math.radians(0)), False)
sketch2.addGeometry(Part.LineSegment(V(-10.55, 13.7, 0), V(-12.7, 13.7, 0)), False)
sketch2.addGeometry(Part.ArcOfCircle(Part.Circle(V(-12.7, 12.7, 0), V(0, 0, 1), 1), math.radians(90), math.radians(180)), False)
sketch2.addGeometry(Part.LineSegment(V(-13.7, 12.7, 0), V(-13.7, 10.55, 0)), False)
sketch2.addGeometry(Part.ArcOfCircle(Part.Circle(V(-12.7, 10.55, 0), V(0, 0, 1), 1), math.radians(-180), math.radians(-90)), False)
sketch2.addGeometry(Part.LineSegment(V(-12.7, 9.55, 0), V(-10.55, 9.55, 0)), False)
sketch2.addGeometry(Part.ArcOfCircle(Part.Circle(V(-10.55, 10.55, 0), V(0, 0, 1), 1), math.radians(-90), math.radians(0)), False)
sketch2.addGeometry(Part.LineSegment(V(-9.55, 10.55, 0), V(-9.55, 12.7, 0)), False)
sketch2.addGeometry(Part.ArcOfCircle(Part.Circle(V(-10.55, 12.7, 0), V(0, 0, 1), 1), math.radians(0), math.radians(90)), False)
sketch2.addGeometry(Part.LineSegment(V(10.55, -13.7, 0), V(12.7, -13.7, 0)), False)
sketch2.addGeometry(Part.ArcOfCircle(Part.Circle(V(12.7, -12.7, 0), V(0, 0, 1), 1), math.radians(-90), math.radians(0)), False)
sketch2.addGeometry(Part.LineSegment(V(13.7, -12.7, 0), V(13.7, -10.55, 0)), False)
sketch2.addGeometry(Part.ArcOfCircle(Part.Circle(V(12.7, -10.55, 0), V(0, 0, 1), 1), math.radians(0), math.radians(90)), False)
sketch2.addGeometry(Part.LineSegment(V(12.7, -9.55, 0), V(10.55, -9.55, 0)), False)
sketch2.addGeometry(Part.ArcOfCircle(Part.Circle(V(10.55, -10.55, 0), V(0, 0, 1), 1), math.radians(90), math.radians(180)), False)
sketch2.addGeometry(Part.LineSegment(V(9.55, -10.55, 0), V(9.55, -12.7, 0)), False)
sketch2.addGeometry(Part.ArcOfCircle(Part.Circle(V(10.55, -12.7, 0), V(0, 0, 1), 1), math.radians(-180), math.radians(-90)), False)
sketch2.addGeometry(Part.LineSegment(V(-13.7, -10.55, 0), V(-13.7, -12.7, 0)), False)
sketch2.addGeometry(Part.ArcOfCircle(Part.Circle(V(-12.7, -12.7, 0), V(0, 0, 1), 1), math.radians(-180), math.radians(-90)), False)
sketch2.addGeometry(Part.LineSegment(V(-12.7, -13.7, 0), V(-10.55, -13.7, 0)), False)
sketch2.addGeometry(Part.ArcOfCircle(Part.Circle(V(-10.55, -12.7, 0), V(0, 0, 1), 1), math.radians(-90), math.radians(0)), False)
sketch2.addGeometry(Part.LineSegment(V(-9.55, -12.7, 0), V(-9.55, -10.55, 0)), False)
sketch2.addGeometry(Part.ArcOfCircle(Part.Circle(V(-10.55, -10.55, 0), V(0, 0, 1), 1), math.radians(0), math.radians(90)), False)
sketch2.addGeometry(Part.LineSegment(V(-10.55, -9.55, 0), V(-12.7, -9.55, 0)), False)
sketch2.addGeometry(Part.ArcOfCircle(Part.Circle(V(-12.7, -10.55, 0), V(0, 0, 1), 1), math.radians(90), math.radians(180)), False)
sketch2.addConstraint(Sketcher.Constraint("Tangent", 0, 2, 1, 1))
sketch2.addConstraint(Sketcher.Constraint("Tangent", 1, 2, 2, 1))
sketch2.addConstraint(Sketcher.Constraint("Tangent", 2, 2, 3, 1))
sketch2.addConstraint(Sketcher.Constraint("Tangent", 3, 2, 4, 1))
sketch2.addConstraint(Sketcher.Constraint("Tangent", 4, 2, 5, 1))
sketch2.addConstraint(Sketcher.Constraint("Tangent", 5, 2, 6, 1))
sketch2.addConstraint(Sketcher.Constraint("Tangent", 6, 2, 7, 1))
sketch2.addConstraint(Sketcher.Constraint("Tangent", 7, 2, 0, 1))
sketch2.addConstraint(Sketcher.Constraint("Tangent", 8, 2, 9, 1))
sketch2.addConstraint(Sketcher.Constraint("Tangent", 9, 2, 10, 1))
sketch2.addConstraint(Sketcher.Constraint("Tangent", 10, 2, 11, 1))
sketch2.addConstraint(Sketcher.Constraint("Tangent", 11, 2, 12, 1))
sketch2.addConstraint(Sketcher.Constraint("Tangent", 12, 2, 13, 1))
sketch2.addConstraint(Sketcher.Constraint("Tangent", 13, 2, 14, 1))
sketch2.addConstraint(Sketcher.Constraint("Tangent", 14, 2, 15, 1))
sketch2.addConstraint(Sketcher.Constraint("Tangent", 15, 2, 8, 1))
sketch2.addConstraint(Sketcher.Constraint("Tangent", 16, 2, 17, 1))
sketch2.addConstraint(Sketcher.Constraint("Tangent", 17, 2, 18, 1))
sketch2.addConstraint(Sketcher.Constraint("Tangent", 18, 2, 19, 1))
sketch2.addConstraint(Sketcher.Constraint("Tangent", 19, 2, 20, 1))
sketch2.addConstraint(Sketcher.Constraint("Tangent", 20, 2, 21, 1))
sketch2.addConstraint(Sketcher.Constraint("Tangent", 21, 2, 22, 1))
sketch2.addConstraint(Sketcher.Constraint("Tangent", 22, 2, 23, 1))
sketch2.addConstraint(Sketcher.Constraint("Tangent", 23, 2, 16, 1))
sketch2.addConstraint(Sketcher.Constraint("Tangent", 24, 2, 25, 1))
sketch2.addConstraint(Sketcher.Constraint("Tangent", 25, 2, 26, 1))
sketch2.addConstraint(Sketcher.Constraint("Tangent", 26, 2, 27, 1))
sketch2.addConstraint(Sketcher.Constraint("Tangent", 27, 2, 28, 1))
sketch2.addConstraint(Sketcher.Constraint("Tangent", 28, 2, 29, 1))
sketch2.addConstraint(Sketcher.Constraint("Tangent", 29, 2, 30, 1))
sketch2.addConstraint(Sketcher.Constraint("Tangent", 30, 2, 31, 1))
sketch2.addConstraint(Sketcher.Constraint("Tangent", 31, 2, 24, 1))
sketch2.addConstraint(Sketcher.Constraint("Vertical", 0))
sketch2.addConstraint(Sketcher.Constraint("Horizontal", 2))
sketch2.addConstraint(Sketcher.Constraint("Vertical", 4))
sketch2.addConstraint(Sketcher.Constraint("Horizontal", 6))
sketch2.addConstraint(Sketcher.Constraint("Horizontal", 8))
sketch2.addConstraint(Sketcher.Constraint("Vertical", 10))
sketch2.addConstraint(Sketcher.Constraint("Horizontal", 12))
sketch2.addConstraint(Sketcher.Constraint("Vertical", 14))
sketch2.addConstraint(Sketcher.Constraint("Horizontal", 16))
sketch2.addConstraint(Sketcher.Constraint("Vertical", 18))
sketch2.addConstraint(Sketcher.Constraint("Horizontal", 20))
sketch2.addConstraint(Sketcher.Constraint("Vertical", 22))
sketch2.addConstraint(Sketcher.Constraint("Vertical", 24))
sketch2.addConstraint(Sketcher.Constraint("Horizontal", 26))
sketch2.addConstraint(Sketcher.Constraint("Vertical", 28))
sketch2.addConstraint(Sketcher.Constraint("Horizontal", 30))
sketch2.addConstraint(Sketcher.Constraint("Equal", 1, 3))
sketch2.addConstraint(Sketcher.Constraint("Equal", 3, 5))
sketch2.addConstraint(Sketcher.Constraint("Equal", 5, 7))
sketch2.addConstraint(Sketcher.Constraint("Equal", 7, 9))
sketch2.addConstraint(Sketcher.Constraint("Equal", 9, 11))
sketch2.addConstraint(Sketcher.Constraint("Equal", 11, 13))
sketch2.addConstraint(Sketcher.Constraint("Equal", 13, 15))
sketch2.addConstraint(Sketcher.Constraint("Equal", 15, 17))
sketch2.addConstraint(Sketcher.Constraint("Equal", 17, 19))
sketch2.addConstraint(Sketcher.Constraint("Equal", 19, 21))
sketch2.addConstraint(Sketcher.Constraint("Equal", 21, 23))
sketch2.addConstraint(Sketcher.Constraint("Equal", 23, 25))
sketch2.addConstraint(Sketcher.Constraint("Equal", 25, 27))
sketch2.addConstraint(Sketcher.Constraint("Equal", 27, 29))
sketch2.addConstraint(Sketcher.Constraint("Equal", 29, 31))
sketch2.addConstraint(Sketcher.Constraint("Symmetric", 9, 3, 17, 3, -1, 1))
sketch2.addConstraint(Sketcher.Constraint("Symmetric", 13, 3, 21, 3, -1, 1))
sketch2.addConstraint(Sketcher.Constraint("Symmetric", 1, 3, 25, 3, -1, 1))
sketch2.addConstraint(Sketcher.Constraint("Symmetric", 5, 3, 29, 3, -1, 1))
sketch2.addConstraint(Sketcher.Constraint("Symmetric", 1, 3, 9, 3, -2))
sketch2.addConstraint(Sketcher.Constraint("Symmetric", 5, 3, 13, 3, -2))
sketch2.addConstraint(Sketcher.Constraint("Equal", 30, 0))
sketch2.addConstraint(Sketcher.Constraint("Radius", 1, 1.0))
sketch2.addConstraint(Sketcher.Constraint("DistanceX", 2, 2, 2, 1, 2.15))
sketch2.addConstraint(Sketcher.Constraint("DistanceX", -1, 1, 1, 3, 12.7))
sketch2.addConstraint(Sketcher.Constraint("DistanceY", -1, 1, 1, 3, 12.7))
sketch2.setExpression("Constraints[70]", "Params.sketch2_radius")
sketch2.setExpression("Constraints[71]", "Params.sketch2_width")
pocket1 = body.newObject("PartDesign::Pocket", "Pocket")
pocket1.Profile = sketch2
pocket1.Type = "ThroughAll"

doc.recompute()
